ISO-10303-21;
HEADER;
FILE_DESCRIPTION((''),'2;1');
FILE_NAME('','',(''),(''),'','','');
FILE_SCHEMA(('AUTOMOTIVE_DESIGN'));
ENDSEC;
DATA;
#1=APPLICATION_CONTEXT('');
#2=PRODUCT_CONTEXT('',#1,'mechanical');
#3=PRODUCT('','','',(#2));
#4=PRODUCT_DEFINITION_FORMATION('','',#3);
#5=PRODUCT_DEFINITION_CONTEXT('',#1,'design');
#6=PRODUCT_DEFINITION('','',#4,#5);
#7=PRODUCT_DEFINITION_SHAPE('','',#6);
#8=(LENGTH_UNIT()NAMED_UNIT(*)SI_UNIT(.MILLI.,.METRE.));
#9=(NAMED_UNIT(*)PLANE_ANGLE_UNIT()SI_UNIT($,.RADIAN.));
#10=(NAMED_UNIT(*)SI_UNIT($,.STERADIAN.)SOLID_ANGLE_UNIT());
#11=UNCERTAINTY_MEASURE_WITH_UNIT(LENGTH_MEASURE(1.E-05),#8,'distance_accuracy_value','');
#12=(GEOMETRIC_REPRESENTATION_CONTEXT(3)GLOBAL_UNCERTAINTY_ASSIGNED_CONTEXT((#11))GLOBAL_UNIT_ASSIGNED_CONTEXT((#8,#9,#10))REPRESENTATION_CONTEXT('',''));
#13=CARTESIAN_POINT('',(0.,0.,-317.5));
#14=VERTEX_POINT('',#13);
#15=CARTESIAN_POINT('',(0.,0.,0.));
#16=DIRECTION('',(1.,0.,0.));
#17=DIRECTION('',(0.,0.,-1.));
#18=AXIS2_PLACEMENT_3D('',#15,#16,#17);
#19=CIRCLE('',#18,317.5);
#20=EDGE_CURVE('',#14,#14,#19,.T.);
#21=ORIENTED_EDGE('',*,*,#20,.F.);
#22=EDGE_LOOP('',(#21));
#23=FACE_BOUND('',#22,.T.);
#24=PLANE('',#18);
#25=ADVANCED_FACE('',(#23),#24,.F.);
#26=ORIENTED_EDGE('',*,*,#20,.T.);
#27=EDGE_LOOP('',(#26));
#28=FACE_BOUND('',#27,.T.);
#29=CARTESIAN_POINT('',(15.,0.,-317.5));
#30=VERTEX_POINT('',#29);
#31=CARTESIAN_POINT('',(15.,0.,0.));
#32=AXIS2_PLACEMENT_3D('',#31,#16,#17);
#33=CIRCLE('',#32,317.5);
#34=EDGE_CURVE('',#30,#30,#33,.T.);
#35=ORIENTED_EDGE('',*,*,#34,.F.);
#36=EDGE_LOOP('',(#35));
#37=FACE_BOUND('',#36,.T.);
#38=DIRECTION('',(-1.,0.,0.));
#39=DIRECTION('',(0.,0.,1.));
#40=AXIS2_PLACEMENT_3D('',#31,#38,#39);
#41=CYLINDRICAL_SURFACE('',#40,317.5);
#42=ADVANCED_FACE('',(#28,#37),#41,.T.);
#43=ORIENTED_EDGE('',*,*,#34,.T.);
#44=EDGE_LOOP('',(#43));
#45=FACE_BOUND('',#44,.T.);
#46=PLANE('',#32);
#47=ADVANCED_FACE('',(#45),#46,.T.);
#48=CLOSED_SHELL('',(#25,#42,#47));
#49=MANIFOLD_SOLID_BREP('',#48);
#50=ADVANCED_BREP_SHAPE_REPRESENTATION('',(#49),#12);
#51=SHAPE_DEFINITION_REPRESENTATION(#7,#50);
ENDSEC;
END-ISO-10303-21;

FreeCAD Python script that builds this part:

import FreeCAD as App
import Part
import Sketcher

V = App.Vector

doc = App.newDocument("Part")
params = doc.addObject("Spreadsheet::Sheet", "Params")
for row, (alias, value) in enumerate([
    ("sketch1_diameter", "635 mm"),
    ("pad1_length", "15 mm"),
], start=1):
    params.set(f"A{row}", alias)
    params.set(f"B{row}", "=" + value)
    params.setAlias(f"B{row}", alias)

body = doc.addObject("PartDesign::Body", "Body")

sketch1 = body.newObject("Sketcher::SketchObject", "Sketch")
sketch1.AttachmentSupport = (doc.getObject("YZ_Plane"), [""])
sketch1.MapMode = "FlatFace"
sketch1.addGeometry(Part.Circle(V(0, 0, 0), V(0, 0, 1), 318), False)
sketch1.addConstraint([
    Sketcher.Constraint("Coincident", 0, 3, -1, 1),
    Sketcher.Constraint("Diameter", 0, 635.0),
])
sketch1.setExpression("Constraints[1]", "Params.sketch1_diameter")
pad1 = body.newObject("PartDesign::Pad", "Pad")
pad1.Profile = sketch1
pad1.setExpression("Length", "Params.pad1_length")

doc.recompute()
